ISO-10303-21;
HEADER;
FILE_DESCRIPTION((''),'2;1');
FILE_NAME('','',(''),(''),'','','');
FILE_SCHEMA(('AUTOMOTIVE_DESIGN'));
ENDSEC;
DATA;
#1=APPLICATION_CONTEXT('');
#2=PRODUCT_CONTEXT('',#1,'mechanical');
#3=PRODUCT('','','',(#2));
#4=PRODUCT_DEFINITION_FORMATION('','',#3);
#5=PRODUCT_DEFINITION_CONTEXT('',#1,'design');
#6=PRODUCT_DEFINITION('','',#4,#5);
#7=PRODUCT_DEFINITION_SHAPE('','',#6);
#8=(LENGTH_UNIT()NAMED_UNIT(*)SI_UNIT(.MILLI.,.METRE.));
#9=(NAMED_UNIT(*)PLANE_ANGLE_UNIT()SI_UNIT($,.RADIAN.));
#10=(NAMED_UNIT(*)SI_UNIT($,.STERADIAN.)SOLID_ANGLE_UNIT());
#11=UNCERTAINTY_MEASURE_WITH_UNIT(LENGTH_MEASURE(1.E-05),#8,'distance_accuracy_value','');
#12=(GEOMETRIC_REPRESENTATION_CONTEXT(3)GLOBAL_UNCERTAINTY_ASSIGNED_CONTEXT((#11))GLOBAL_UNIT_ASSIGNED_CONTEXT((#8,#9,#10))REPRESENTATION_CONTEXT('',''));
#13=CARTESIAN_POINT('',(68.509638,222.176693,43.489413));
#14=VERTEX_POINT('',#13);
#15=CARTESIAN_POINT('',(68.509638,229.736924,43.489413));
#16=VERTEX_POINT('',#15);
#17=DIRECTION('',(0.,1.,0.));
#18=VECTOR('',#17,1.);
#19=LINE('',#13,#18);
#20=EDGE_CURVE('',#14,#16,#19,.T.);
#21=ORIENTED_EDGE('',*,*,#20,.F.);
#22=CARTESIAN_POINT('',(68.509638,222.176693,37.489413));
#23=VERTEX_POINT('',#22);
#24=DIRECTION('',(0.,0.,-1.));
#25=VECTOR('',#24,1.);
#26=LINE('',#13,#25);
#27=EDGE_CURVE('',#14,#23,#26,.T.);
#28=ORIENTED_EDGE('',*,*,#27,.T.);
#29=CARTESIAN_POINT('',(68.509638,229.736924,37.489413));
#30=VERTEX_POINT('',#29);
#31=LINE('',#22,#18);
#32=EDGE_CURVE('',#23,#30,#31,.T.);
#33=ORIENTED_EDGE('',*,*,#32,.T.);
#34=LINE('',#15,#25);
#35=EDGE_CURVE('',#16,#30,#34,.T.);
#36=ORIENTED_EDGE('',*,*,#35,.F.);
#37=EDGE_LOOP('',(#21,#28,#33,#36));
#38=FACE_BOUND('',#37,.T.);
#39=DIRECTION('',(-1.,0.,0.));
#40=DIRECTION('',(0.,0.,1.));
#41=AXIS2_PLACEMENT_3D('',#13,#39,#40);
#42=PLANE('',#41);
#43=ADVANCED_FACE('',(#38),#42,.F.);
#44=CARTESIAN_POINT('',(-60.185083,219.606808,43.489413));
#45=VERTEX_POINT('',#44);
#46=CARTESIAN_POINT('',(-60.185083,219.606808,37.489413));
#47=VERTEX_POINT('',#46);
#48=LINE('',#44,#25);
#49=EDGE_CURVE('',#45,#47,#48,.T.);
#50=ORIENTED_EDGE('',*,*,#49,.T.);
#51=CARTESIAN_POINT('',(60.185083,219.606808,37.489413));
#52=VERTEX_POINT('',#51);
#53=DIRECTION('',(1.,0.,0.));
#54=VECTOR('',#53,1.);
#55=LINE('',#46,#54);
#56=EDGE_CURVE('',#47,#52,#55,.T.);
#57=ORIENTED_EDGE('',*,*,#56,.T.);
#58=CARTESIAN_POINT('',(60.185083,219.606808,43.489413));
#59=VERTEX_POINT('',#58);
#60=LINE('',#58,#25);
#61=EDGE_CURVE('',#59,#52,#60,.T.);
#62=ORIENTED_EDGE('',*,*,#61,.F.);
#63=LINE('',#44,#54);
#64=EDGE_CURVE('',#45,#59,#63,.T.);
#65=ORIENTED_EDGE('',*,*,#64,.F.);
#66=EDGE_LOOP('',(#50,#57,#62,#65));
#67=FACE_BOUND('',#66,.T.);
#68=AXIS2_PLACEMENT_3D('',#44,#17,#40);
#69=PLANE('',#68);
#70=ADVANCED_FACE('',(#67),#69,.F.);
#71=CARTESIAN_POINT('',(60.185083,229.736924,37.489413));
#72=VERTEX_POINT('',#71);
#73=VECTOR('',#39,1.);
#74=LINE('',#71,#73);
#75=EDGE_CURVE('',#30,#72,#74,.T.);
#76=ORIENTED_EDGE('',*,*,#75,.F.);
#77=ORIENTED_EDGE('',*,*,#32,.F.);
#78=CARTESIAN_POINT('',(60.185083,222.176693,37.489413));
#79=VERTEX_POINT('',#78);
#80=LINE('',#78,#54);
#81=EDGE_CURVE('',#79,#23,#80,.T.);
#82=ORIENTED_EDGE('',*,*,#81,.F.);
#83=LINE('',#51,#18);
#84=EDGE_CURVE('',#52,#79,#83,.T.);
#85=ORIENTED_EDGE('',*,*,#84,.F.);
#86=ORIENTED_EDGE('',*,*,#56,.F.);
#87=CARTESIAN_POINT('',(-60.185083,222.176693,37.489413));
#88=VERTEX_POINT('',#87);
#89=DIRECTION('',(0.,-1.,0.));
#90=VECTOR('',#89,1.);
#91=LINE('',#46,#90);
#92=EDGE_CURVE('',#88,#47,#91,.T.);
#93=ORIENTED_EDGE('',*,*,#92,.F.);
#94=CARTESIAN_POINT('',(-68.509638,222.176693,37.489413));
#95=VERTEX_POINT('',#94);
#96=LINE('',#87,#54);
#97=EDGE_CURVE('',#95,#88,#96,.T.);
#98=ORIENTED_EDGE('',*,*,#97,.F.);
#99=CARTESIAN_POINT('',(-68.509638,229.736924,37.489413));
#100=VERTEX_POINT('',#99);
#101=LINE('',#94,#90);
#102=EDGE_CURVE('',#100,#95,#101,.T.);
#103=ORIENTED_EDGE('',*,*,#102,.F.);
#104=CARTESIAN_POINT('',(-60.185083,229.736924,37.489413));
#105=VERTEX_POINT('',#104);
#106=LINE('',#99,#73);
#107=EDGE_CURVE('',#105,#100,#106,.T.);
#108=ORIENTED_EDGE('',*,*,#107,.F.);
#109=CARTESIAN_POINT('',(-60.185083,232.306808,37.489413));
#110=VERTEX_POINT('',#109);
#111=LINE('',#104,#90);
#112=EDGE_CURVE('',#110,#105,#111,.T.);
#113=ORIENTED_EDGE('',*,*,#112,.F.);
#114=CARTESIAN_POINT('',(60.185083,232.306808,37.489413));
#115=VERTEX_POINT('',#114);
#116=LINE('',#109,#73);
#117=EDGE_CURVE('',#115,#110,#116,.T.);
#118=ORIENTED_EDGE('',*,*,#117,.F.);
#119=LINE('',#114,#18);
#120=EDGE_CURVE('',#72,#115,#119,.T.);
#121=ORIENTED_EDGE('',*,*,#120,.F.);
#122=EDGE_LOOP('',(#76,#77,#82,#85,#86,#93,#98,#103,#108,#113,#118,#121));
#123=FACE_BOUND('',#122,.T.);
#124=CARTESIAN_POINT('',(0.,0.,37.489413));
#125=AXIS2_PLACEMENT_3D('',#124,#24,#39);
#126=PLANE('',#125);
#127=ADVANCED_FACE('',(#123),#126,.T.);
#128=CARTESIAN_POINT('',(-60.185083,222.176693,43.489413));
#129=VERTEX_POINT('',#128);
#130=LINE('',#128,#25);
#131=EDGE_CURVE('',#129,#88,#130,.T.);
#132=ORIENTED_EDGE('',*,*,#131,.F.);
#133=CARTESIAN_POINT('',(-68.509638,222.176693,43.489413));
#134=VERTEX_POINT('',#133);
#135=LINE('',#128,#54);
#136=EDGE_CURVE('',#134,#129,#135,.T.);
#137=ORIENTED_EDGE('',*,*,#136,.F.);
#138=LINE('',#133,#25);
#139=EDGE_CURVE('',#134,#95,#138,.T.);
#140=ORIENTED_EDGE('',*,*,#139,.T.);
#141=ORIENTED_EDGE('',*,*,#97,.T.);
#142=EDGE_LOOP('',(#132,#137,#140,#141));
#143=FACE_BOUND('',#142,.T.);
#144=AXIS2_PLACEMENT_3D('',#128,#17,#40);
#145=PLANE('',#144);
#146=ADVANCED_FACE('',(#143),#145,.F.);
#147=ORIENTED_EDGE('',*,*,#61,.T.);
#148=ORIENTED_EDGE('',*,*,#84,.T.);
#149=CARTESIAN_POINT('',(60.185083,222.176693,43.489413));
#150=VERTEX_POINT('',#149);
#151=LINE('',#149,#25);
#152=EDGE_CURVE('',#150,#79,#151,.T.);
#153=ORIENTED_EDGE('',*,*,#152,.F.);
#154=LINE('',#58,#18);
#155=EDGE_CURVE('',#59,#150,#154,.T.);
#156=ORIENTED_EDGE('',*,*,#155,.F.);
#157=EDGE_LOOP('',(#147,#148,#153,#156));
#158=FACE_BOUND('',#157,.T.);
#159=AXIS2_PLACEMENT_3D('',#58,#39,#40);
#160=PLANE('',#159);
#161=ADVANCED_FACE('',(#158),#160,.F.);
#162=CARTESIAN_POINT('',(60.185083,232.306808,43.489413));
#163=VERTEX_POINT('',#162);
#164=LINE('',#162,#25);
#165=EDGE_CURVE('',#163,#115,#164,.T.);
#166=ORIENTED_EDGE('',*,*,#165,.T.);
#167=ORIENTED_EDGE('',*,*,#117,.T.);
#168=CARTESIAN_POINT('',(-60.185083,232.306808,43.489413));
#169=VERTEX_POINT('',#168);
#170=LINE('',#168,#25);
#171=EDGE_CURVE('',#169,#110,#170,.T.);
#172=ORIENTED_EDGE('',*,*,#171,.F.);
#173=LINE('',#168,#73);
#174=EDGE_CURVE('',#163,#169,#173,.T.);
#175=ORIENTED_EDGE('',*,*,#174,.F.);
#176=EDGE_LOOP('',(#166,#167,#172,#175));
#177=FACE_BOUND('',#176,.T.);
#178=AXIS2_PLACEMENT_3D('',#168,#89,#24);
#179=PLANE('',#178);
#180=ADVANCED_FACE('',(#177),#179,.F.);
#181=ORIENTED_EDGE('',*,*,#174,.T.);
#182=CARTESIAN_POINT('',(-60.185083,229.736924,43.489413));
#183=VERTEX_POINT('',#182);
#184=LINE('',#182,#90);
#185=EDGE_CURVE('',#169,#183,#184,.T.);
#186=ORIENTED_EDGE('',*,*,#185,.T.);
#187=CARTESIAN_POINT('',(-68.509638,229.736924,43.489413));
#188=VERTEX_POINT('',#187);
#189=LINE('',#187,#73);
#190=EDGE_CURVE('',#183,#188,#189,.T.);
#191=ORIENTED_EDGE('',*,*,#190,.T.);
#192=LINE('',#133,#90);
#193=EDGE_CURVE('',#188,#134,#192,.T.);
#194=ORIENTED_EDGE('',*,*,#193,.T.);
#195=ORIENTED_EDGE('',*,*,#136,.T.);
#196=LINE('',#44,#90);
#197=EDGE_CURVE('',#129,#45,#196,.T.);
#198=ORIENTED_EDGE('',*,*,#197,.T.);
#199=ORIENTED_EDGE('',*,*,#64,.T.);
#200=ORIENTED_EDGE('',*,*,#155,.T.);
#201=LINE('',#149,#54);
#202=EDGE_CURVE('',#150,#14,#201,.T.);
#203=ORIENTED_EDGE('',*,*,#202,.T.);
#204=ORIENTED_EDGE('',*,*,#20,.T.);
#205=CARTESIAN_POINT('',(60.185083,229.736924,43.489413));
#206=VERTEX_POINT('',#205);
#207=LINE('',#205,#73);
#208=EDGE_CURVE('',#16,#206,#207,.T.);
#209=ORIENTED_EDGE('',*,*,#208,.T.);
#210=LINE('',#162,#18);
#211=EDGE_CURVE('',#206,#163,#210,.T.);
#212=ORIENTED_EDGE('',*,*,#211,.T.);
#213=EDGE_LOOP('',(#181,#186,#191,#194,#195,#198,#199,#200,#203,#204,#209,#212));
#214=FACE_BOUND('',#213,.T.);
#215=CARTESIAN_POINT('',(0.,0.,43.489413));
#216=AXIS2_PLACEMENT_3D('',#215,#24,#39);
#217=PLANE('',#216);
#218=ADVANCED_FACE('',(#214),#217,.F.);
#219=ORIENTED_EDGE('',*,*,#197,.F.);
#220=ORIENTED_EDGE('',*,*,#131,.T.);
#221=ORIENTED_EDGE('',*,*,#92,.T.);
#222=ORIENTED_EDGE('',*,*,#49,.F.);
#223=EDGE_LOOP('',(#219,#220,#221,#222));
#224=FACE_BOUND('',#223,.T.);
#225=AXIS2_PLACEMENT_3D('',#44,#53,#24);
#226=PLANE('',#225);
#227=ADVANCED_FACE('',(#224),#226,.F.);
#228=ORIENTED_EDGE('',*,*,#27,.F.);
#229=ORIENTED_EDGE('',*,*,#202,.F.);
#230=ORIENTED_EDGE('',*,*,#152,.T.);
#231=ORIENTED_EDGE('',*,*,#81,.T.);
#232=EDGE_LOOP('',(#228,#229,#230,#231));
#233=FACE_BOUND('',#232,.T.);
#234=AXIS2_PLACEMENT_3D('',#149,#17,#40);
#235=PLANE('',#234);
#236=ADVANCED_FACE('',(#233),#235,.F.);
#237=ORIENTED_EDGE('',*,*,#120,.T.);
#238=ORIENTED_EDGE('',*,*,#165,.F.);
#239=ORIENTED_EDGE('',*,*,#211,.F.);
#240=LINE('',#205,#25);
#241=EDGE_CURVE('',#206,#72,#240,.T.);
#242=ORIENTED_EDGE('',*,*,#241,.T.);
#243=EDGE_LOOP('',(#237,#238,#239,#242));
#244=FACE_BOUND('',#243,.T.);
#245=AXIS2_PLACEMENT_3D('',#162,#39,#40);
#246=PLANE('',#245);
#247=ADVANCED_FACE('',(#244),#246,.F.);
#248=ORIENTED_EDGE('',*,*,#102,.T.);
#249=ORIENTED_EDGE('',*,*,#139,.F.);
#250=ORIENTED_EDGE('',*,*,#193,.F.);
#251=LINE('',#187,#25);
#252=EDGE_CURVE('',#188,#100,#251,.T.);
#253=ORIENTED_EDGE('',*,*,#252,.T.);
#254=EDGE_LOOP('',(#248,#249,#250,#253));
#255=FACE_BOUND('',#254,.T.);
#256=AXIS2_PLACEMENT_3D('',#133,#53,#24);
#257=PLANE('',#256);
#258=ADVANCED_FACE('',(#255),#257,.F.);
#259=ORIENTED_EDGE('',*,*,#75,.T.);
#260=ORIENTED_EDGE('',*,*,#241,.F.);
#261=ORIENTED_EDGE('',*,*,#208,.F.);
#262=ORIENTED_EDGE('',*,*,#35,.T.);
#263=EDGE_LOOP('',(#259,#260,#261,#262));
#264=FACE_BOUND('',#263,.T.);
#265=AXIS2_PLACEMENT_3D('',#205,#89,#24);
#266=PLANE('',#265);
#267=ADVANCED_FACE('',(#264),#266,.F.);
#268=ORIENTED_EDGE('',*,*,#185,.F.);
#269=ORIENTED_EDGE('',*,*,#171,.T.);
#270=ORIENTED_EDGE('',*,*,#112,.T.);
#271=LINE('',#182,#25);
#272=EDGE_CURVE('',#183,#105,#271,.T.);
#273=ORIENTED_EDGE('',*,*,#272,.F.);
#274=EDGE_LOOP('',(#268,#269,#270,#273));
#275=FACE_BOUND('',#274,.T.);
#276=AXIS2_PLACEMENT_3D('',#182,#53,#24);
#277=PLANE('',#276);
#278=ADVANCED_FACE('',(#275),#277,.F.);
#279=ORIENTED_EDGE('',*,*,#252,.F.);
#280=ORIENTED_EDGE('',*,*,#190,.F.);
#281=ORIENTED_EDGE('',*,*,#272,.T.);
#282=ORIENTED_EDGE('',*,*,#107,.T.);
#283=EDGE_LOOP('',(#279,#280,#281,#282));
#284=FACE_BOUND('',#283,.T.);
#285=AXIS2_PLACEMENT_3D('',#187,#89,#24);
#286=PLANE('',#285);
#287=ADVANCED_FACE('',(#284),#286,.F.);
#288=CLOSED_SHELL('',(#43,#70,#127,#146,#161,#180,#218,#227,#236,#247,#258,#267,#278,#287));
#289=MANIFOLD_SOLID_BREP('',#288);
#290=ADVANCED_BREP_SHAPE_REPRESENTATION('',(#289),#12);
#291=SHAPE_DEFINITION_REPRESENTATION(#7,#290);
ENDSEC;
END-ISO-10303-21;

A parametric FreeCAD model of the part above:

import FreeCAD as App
import Part
import Sketcher
Q = App.Units.Quantity

doc = App.newDocument("Part")
body = doc.addObject("PartDesign::Body", "Body")

# Sketch on XY plane
sketch1 = body.newObject("Sketcher::SketchObject", "Sketch")
sketch1.AttachmentSupport = (doc.getObject("XY_Plane"), [""])
sketch1.MapMode = "FlatFace"
sketch1.AttachmentOffset = App.Placement(App.Vector(0, 0, 37.489413), App.Rotation())
sketch1.addGeometry(Part.LineSegment(App.Vector(60.2, 232.3, 0), App.Vector(-60.2, 232.3, 0)), False)
sketch1.addGeometry(Part.LineSegment(App.Vector(-60.2, 232.3, 0), App.Vector(-60.2, 229.7, 0)), False)
sketch1.addGeometry(Part.LineSegment(App.Vector(-60.2, 229.7, 0), App.Vector(-68.5, 229.7, 0)), False)
sketch1.addGeometry(Part.LineSegment(App.Vector(-68.5, 229.7, 0), App.Vector(-68.5, 222.2, 0)), False)
sketch1.addGeometry(Part.LineSegment(App.Vector(-68.5, 222.2, 0), App.Vector(-60.2, 222.2, 0)), False)
sketch1.addGeometry(Part.LineSegment(App.Vector(-60.2, 222.2, 0), App.Vector(-60.2, 219.6, 0)), False)
sketch1.addGeometry(Part.LineSegment(App.Vector(-60.2, 219.6, 0), App.Vector(60.2, 219.6, 0)), False)
sketch1.addGeometry(Part.LineSegment(App.Vector(60.2, 219.6, 0), App.Vector(60.2, 222.2, 0)), False)
sketch1.addGeometry(Part.LineSegment(App.Vector(60.2, 222.2, 0), App.Vector(68.5, 222.2, 0)), False)
sketch1.addGeometry(Part.LineSegment(App.Vector(68.5, 222.2, 0), App.Vector(68.5, 229.7, 0)), False)
sketch1.addGeometry(Part.LineSegment(App.Vector(68.5, 229.7, 0), App.Vector(60.2, 229.7, 0)), False)
sketch1.addGeometry(Part.LineSegment(App.Vector(60.2, 229.7, 0), App.Vector(60.2, 232.3, 0)), False)
sketch1.addConstraint(Sketcher.Constraint("Coincident", 0, 2, 1, 1))
sketch1.addConstraint(Sketcher.Constraint("Coincident", 1, 2, 2, 1))
sketch1.addConstraint(Sketcher.Constraint("Coincident", 2, 2, 3, 1))
sketch1.addConstraint(Sketcher.Constraint("Coincident", 3, 2, 4, 1))
sketch1.addConstraint(Sketcher.Constraint("Coincident", 4, 2, 5, 1))
sketch1.addConstraint(Sketcher.Constraint("Coincident", 5, 2, 6, 1))
sketch1.addConstraint(Sketcher.Constraint("Coincident", 6, 2, 7, 1))
sketch1.addConstraint(Sketcher.Constraint("Coincident", 7, 2, 8, 1))
sketch1.addConstraint(Sketcher.Constraint("Coincident", 8, 2, 9, 1))
sketch1.addConstraint(Sketcher.Constraint("Coincident", 9, 2, 10, 1))
sketch1.addConstraint(Sketcher.Constraint("Coincident", 10, 2, 11, 1))
sketch1.addConstraint(Sketcher.Constraint("Coincident", 11, 2, 0, 1))
sketch1.addConstraint(Sketcher.Constraint("Horizontal", 0))
sketch1.addConstraint(Sketcher.Constraint("Vertical", 1))
sketch1.addConstraint(Sketcher.Constraint("Horizontal", 2))
sketch1.addConstraint(Sketcher.Constraint("Vertical", 3))
sketch1.addConstraint(Sketcher.Constraint("Horizontal", 4))
sketch1.addConstraint(Sketcher.Constraint("Vertical", 5))
sketch1.addConstraint(Sketcher.Constraint("Horizontal", 6))
sketch1.addConstraint(Sketcher.Constraint("Vertical", 7))
sketch1.addConstraint(Sketcher.Constraint("Horizontal", 8))
sketch1.addConstraint(Sketcher.Constraint("Vertical", 9))
sketch1.addConstraint(Sketcher.Constraint("Horizontal", 10))
sketch1.addConstraint(Sketcher.Constraint("Vertical", 11))
sketch1.addConstraint(Sketcher.Constraint("Symmetric", 4, 2, 7, 2, -2))
sketch1.addConstraint(Sketcher.Constraint("Symmetric", 2, 2, 9, 2, -2))
sketch1.addConstraint(Sketcher.Constraint("Vertical", 1, 2, 4, 2))
sketch1.addConstraint(Sketcher.Constraint("Vertical", 7, 2, 10, 2))
sketch1.addConstraint(Sketcher.Constraint("Equal", 1, 5))
sketch1.addConstraint(Sketcher.Constraint("DistanceY", 5, 2, 0, 2, Q("12.7 mm")))
sketch1.addConstraint(Sketcher.Constraint("DistanceY", 3, 2, 3, 1, Q("7.560231 mm")))
sketch1.addConstraint(Sketcher.Constraint("DistanceX", 0, 2, 0, 1, Q("120.370166 mm")))
sketch1.addConstraint(Sketcher.Constraint("DistanceX", 2, 2, 2, 1, Q("8.324555 mm")))
sketch1.addConstraint(Sketcher.Constraint("DistanceY", -1, 1, 0, 2, Q("232.306808 mm")))
pad1 = body.newObject("PartDesign::Pad", "Pad")
pad1.Profile = sketch1
pad1.Length = 6

doc.recompute()
